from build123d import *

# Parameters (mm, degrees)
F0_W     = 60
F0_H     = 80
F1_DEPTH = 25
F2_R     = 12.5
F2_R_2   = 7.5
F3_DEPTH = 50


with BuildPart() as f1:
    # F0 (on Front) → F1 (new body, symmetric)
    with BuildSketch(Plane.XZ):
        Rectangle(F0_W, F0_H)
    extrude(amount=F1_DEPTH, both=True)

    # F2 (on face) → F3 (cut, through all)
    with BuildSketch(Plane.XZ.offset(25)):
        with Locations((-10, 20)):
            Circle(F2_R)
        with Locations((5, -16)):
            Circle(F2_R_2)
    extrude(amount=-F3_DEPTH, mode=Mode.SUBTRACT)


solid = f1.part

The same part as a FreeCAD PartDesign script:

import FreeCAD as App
import Part
import Sketcher

V = App.Vector
Q = App.Units.Quantity


def add_polygon(sketch, points):
    """Adds a closed chain of lines whose ends are joined by coincident constraints."""
    first, n = sketch.GeometryCount, len(points)
    for a, b in zip(points, points[1:] + points[:1]):
        sketch.addGeometry(Part.LineSegment(App.Vector(*a, 0), App.Vector(*b, 0)), False)
    for i in range(n):
        sketch.addConstraint(Sketcher.Constraint("Coincident", first + i, 2, first + (i + 1) % n, 1))

doc = App.newDocument("Part")
body = doc.addObject("PartDesign::Body", "Body")

# Sketch on XZ plane
sketch1 = doc.addObject("Sketcher::SketchObject", "Sketch")
body.addObject(sketch1)
sketch1.AttachmentSupport = (doc.XZ_Plane, [""])
sketch1.MapMode = "FlatFace"
add_polygon(sketch1, [(-30, 40), (-30, -40), (30, -40), (30, 40)])  # lines 0-3
sketch1.addConstraint([
    Sketcher.Constraint("Vertical", 0),
    Sketcher.Constraint("Horizontal", 1),
    Sketcher.Constraint("Vertical", 2),
    Sketcher.Constraint("Horizontal", 3),
    Sketcher.Constraint("Symmetric", 0, 2, 2, 2, -1, 1),
    Sketcher.Constraint("DistanceX", 1, 1, 1, 2, Q("60 mm")),
    Sketcher.Constraint("DistanceY", 0, 2, 0, 1, Q("80 mm")),
])
pad1 = doc.addObject("PartDesign::Pad", "Pad")
body.addObject(pad1)
pad1.Profile = sketch1
pad1.Length = 50
pad1.Midplane = True

# Sketch on XZ plane
sketch2 = doc.addObject("Sketcher::SketchObject", "Sketch001")
body.addObject(sketch2)
sketch2.AttachmentSupport = (doc.XZ_Plane, [""])
sketch2.MapMode = "FlatFace"
sketch2.AttachmentOffset = App.Placement(V(0, 0, 25), App.Rotation())
sketch2.addGeometry([
    Part.Circle(V(-10, 20, 0), V(0, 0, 1), 12.5),
    Part.Circle(V(5, -16, 0), V(0, 0, 1), 7.5),
], False)
sketch2.addConstraint([
    Sketcher.Constraint("Diameter", 0, Q("25 mm")),
    Sketcher.Constraint("Diameter", 1, Q("15 mm")),
    Sketcher.Constraint("DistanceX", 0, 3, -1, 1, Q("10 mm")),
    Sketcher.Constraint("DistanceY", -1, 1, 0, 3, Q("20 mm")),
    Sketcher.Constraint("DistanceX", -1, 1, 1, 3, Q("5 mm")),
    Sketcher.Constraint("DistanceY", 1, 3, -1, 1, Q("16 mm")),
])
pocket1 = doc.addObject("PartDesign::Pocket", "Pocket")
body.addObject(pocket1)
pocket1.Profile = sketch2
pocket1.Type = "ThroughAll"

doc.recompute()
